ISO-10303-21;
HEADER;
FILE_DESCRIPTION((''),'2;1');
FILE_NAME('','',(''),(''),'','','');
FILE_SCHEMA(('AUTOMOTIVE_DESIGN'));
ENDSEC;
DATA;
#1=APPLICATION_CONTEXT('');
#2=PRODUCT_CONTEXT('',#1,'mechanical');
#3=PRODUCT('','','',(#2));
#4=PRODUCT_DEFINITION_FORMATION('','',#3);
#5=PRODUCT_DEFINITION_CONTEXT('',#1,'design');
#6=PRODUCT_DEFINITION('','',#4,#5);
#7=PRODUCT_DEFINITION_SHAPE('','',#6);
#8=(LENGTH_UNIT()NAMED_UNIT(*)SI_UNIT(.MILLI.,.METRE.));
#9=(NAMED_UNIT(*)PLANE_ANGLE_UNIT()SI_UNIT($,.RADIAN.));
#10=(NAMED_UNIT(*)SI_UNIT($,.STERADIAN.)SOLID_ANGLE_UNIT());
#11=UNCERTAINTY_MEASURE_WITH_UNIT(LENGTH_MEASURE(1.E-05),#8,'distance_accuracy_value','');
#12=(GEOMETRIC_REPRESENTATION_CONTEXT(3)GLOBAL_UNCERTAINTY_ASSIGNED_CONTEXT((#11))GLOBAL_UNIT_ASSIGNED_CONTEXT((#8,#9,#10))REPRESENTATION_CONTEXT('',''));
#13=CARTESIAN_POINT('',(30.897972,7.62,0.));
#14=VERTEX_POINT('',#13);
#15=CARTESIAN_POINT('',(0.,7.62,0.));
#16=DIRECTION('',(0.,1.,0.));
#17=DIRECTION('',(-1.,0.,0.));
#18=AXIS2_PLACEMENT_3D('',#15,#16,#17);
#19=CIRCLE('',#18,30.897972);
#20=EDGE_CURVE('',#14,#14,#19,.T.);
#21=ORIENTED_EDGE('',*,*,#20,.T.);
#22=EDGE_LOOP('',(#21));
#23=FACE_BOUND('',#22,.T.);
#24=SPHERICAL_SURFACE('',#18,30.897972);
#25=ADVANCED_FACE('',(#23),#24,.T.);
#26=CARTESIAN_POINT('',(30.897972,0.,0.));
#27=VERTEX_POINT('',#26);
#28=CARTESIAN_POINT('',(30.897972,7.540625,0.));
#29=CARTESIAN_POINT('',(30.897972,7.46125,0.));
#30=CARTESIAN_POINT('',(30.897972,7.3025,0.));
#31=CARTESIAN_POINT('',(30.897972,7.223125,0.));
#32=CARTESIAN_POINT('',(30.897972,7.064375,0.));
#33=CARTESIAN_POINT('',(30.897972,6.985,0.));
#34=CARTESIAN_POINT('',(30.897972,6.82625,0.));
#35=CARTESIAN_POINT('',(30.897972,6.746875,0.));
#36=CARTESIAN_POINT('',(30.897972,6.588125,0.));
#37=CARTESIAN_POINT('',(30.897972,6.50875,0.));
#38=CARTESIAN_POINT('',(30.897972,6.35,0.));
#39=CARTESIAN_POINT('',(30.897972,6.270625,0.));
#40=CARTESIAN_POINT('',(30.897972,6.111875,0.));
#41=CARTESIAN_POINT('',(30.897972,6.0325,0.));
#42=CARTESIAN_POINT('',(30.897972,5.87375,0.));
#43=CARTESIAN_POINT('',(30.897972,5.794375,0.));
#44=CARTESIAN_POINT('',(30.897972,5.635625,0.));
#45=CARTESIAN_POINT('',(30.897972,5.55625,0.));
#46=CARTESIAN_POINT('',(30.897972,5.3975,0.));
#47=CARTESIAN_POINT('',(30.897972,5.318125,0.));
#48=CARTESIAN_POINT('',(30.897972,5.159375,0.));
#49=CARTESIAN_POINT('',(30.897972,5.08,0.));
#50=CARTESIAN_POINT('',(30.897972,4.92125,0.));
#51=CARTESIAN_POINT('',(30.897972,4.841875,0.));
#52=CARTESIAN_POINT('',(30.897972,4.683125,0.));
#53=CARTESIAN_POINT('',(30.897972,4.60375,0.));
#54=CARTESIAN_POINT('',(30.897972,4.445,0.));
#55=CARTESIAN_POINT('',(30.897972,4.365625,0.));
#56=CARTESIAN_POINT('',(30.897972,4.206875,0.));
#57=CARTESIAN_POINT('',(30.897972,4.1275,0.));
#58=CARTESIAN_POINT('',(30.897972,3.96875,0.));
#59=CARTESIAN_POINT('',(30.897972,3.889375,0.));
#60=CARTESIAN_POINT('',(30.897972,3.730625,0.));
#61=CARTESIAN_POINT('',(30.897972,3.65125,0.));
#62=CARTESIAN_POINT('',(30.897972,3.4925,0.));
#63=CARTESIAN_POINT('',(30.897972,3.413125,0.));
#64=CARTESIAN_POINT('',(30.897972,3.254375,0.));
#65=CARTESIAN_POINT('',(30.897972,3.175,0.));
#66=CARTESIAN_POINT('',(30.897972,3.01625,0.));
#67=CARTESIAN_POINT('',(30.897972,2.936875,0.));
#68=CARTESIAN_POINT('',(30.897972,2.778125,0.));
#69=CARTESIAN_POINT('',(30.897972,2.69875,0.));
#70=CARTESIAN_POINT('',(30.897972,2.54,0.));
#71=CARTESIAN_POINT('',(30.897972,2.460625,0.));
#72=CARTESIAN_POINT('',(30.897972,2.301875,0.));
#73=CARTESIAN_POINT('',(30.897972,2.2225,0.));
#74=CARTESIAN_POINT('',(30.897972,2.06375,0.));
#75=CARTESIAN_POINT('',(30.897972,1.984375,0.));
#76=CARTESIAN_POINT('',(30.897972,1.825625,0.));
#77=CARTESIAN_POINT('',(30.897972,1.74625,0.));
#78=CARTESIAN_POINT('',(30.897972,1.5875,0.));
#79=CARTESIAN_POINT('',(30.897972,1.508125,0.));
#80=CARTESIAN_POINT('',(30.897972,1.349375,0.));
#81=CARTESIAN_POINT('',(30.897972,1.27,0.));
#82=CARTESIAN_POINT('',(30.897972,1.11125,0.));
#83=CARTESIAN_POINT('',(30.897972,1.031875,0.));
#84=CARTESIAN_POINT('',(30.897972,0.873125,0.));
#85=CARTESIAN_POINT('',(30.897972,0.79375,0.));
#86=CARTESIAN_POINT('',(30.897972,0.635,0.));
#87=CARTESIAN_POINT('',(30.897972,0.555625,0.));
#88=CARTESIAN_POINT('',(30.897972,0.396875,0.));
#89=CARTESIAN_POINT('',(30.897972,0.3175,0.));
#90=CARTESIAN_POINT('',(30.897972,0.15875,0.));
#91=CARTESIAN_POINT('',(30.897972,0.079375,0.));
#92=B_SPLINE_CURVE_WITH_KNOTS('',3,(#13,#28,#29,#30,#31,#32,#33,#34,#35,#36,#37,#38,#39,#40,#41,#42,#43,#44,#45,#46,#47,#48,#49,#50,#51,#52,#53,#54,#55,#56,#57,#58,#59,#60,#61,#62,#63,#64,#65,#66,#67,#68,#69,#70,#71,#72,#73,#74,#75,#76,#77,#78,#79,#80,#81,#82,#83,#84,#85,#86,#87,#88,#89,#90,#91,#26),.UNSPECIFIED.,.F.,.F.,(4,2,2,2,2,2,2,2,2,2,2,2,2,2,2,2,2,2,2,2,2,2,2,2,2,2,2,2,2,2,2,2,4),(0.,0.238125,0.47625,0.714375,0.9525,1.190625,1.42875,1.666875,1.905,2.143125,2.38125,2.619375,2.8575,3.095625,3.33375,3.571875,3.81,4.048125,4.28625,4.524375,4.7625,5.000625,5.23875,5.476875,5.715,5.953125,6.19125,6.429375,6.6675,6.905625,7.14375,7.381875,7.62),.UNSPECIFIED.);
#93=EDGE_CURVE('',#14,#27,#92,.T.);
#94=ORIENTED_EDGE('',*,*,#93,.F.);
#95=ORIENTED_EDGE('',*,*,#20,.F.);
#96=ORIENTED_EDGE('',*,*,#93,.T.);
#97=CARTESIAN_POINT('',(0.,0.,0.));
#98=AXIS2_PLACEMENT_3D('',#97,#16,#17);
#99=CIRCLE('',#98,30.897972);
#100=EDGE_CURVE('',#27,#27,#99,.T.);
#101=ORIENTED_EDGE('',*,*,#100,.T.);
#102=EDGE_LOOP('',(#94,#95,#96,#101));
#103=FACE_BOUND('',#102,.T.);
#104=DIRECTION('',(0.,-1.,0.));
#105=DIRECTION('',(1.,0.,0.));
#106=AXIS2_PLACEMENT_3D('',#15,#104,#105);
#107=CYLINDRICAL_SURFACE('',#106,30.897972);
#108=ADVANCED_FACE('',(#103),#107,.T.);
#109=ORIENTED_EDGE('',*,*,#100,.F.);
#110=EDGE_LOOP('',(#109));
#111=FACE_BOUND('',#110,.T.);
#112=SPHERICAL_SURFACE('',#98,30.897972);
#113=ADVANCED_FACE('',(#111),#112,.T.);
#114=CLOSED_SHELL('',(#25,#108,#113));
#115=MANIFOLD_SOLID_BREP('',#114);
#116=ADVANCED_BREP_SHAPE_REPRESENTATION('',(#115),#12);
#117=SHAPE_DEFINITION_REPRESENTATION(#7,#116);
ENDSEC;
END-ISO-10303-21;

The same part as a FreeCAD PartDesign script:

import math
import FreeCAD as App
import Part
import Sketcher
from FreeCAD import Vector

doc = App.newDocument("Part")
params = doc.addObject("Spreadsheet::Sheet", "Params")
for row, (alias, value) in enumerate([
    ("revolution_angle", "180 deg"),
    ("pad1_length", "0.3 in"),
    ("revolution2_angle", "180 deg"),
], start=1):
    params.set(f"A{row}", alias)
    params.set(f"B{row}", "=" + value)
    params.setAlias(f"B{row}", alias)

body = doc.addObject("PartDesign::Body", "Body")

# Sketch on XZ plane
sketch1 = body.newObject("Sketcher::SketchObject", "Sketch")
sketch1.AttachmentSupport = (doc.getObject("XZ_Plane"), [""])
sketch1.MapMode = "FlatFace"
sketch1.addGeometry([
    Part.LineSegment(Vector(0, -31, 0), Vector(0, 31, 0)),
    Part.ArcOfCircle(Part.Circle(Vector(0, 0, 0), Vector(0, 0, 1), 31), math.radians(-90), math.radians(90)),
], False)
sketch1.addConstraint([
    Sketcher.Constraint("Coincident", 0, 1, 1, 1),
    Sketcher.Constraint("Coincident", 1, 2, 0, 2),
    Sketcher.Constraint("Vertical", 0),
    Sketcher.Constraint("Coincident", 1, 3, -1, 1),
    Sketcher.Constraint("PointOnObject", 0, 1, -2),
    Sketcher.Constraint("Radius", 1, 30.897972),
])
revolution = body.newObject("PartDesign::Revolution", "Revolution")
revolution.Profile = sketch1
revolution.ReferenceAxis = (sketch1, ["V_Axis"])
revolution.setExpression("Angle", "Params.revolution_angle")
revolution.Reversed = True

# Sketch on XZ plane
sketch2 = body.newObject("Sketcher::SketchObject", "Sketch001")
sketch2.AttachmentSupport = (doc.getObject("XZ_Plane"), [""])
sketch2.MapMode = "FlatFace"
sketch2.addGeometry(Part.Circle(Vector(0, 0, 0), Vector(0, 0, 1), 31), False)
sketch2.addConstraint([
    Sketcher.Constraint("Coincident", 0, 3, -1, 1),
    Sketcher.Constraint("Diameter", 0, 61.795944),
])
pad1 = body.newObject("PartDesign::Pad", "Pad")
pad1.Profile = sketch2
pad1.setExpression("Length", "Params.pad1_length")
pad1.Reversed = True

# Sketch on XZ plane
sketch3 = body.newObject("Sketcher::SketchObject", "Sketch002")
sketch3.AttachmentSupport = (doc.getObject("XZ_Plane"), [""])
sketch3.MapMode = "FlatFace"
sketch3.AttachmentOffset = App.Placement(Vector(0, 0, -0.3 * 25.4), App.Rotation())
sketch3.addGeometry([
    Part.LineSegment(Vector(0, -31, 0), Vector(0, 31, 0)),
    Part.ArcOfCircle(Part.Circle(Vector(0, 0, 0), Vector(0, 0, 1), 31), math.radians(-90), math.radians(90)),
], False)
sketch3.addConstraint([
    Sketcher.Constraint("Coincident", 0, 1, 1, 1),
    Sketcher.Constraint("Coincident", 1, 2, 0, 2),
    Sketcher.Constraint("Vertical", 0),
    Sketcher.Constraint("Coincident", 1, 3, -1, 1),
    Sketcher.Constraint("PointOnObject", 0, 1, -2),
    Sketcher.Constraint("Radius", 1, 30.897972),
])
revolution2 = body.newObject("PartDesign::Revolution", "Revolution001")
revolution2.Profile = sketch3
revolution2.ReferenceAxis = (sketch3, ["V_Axis"])
revolution2.setExpression("Angle", "Params.revolution2_angle")

doc.recompute()
